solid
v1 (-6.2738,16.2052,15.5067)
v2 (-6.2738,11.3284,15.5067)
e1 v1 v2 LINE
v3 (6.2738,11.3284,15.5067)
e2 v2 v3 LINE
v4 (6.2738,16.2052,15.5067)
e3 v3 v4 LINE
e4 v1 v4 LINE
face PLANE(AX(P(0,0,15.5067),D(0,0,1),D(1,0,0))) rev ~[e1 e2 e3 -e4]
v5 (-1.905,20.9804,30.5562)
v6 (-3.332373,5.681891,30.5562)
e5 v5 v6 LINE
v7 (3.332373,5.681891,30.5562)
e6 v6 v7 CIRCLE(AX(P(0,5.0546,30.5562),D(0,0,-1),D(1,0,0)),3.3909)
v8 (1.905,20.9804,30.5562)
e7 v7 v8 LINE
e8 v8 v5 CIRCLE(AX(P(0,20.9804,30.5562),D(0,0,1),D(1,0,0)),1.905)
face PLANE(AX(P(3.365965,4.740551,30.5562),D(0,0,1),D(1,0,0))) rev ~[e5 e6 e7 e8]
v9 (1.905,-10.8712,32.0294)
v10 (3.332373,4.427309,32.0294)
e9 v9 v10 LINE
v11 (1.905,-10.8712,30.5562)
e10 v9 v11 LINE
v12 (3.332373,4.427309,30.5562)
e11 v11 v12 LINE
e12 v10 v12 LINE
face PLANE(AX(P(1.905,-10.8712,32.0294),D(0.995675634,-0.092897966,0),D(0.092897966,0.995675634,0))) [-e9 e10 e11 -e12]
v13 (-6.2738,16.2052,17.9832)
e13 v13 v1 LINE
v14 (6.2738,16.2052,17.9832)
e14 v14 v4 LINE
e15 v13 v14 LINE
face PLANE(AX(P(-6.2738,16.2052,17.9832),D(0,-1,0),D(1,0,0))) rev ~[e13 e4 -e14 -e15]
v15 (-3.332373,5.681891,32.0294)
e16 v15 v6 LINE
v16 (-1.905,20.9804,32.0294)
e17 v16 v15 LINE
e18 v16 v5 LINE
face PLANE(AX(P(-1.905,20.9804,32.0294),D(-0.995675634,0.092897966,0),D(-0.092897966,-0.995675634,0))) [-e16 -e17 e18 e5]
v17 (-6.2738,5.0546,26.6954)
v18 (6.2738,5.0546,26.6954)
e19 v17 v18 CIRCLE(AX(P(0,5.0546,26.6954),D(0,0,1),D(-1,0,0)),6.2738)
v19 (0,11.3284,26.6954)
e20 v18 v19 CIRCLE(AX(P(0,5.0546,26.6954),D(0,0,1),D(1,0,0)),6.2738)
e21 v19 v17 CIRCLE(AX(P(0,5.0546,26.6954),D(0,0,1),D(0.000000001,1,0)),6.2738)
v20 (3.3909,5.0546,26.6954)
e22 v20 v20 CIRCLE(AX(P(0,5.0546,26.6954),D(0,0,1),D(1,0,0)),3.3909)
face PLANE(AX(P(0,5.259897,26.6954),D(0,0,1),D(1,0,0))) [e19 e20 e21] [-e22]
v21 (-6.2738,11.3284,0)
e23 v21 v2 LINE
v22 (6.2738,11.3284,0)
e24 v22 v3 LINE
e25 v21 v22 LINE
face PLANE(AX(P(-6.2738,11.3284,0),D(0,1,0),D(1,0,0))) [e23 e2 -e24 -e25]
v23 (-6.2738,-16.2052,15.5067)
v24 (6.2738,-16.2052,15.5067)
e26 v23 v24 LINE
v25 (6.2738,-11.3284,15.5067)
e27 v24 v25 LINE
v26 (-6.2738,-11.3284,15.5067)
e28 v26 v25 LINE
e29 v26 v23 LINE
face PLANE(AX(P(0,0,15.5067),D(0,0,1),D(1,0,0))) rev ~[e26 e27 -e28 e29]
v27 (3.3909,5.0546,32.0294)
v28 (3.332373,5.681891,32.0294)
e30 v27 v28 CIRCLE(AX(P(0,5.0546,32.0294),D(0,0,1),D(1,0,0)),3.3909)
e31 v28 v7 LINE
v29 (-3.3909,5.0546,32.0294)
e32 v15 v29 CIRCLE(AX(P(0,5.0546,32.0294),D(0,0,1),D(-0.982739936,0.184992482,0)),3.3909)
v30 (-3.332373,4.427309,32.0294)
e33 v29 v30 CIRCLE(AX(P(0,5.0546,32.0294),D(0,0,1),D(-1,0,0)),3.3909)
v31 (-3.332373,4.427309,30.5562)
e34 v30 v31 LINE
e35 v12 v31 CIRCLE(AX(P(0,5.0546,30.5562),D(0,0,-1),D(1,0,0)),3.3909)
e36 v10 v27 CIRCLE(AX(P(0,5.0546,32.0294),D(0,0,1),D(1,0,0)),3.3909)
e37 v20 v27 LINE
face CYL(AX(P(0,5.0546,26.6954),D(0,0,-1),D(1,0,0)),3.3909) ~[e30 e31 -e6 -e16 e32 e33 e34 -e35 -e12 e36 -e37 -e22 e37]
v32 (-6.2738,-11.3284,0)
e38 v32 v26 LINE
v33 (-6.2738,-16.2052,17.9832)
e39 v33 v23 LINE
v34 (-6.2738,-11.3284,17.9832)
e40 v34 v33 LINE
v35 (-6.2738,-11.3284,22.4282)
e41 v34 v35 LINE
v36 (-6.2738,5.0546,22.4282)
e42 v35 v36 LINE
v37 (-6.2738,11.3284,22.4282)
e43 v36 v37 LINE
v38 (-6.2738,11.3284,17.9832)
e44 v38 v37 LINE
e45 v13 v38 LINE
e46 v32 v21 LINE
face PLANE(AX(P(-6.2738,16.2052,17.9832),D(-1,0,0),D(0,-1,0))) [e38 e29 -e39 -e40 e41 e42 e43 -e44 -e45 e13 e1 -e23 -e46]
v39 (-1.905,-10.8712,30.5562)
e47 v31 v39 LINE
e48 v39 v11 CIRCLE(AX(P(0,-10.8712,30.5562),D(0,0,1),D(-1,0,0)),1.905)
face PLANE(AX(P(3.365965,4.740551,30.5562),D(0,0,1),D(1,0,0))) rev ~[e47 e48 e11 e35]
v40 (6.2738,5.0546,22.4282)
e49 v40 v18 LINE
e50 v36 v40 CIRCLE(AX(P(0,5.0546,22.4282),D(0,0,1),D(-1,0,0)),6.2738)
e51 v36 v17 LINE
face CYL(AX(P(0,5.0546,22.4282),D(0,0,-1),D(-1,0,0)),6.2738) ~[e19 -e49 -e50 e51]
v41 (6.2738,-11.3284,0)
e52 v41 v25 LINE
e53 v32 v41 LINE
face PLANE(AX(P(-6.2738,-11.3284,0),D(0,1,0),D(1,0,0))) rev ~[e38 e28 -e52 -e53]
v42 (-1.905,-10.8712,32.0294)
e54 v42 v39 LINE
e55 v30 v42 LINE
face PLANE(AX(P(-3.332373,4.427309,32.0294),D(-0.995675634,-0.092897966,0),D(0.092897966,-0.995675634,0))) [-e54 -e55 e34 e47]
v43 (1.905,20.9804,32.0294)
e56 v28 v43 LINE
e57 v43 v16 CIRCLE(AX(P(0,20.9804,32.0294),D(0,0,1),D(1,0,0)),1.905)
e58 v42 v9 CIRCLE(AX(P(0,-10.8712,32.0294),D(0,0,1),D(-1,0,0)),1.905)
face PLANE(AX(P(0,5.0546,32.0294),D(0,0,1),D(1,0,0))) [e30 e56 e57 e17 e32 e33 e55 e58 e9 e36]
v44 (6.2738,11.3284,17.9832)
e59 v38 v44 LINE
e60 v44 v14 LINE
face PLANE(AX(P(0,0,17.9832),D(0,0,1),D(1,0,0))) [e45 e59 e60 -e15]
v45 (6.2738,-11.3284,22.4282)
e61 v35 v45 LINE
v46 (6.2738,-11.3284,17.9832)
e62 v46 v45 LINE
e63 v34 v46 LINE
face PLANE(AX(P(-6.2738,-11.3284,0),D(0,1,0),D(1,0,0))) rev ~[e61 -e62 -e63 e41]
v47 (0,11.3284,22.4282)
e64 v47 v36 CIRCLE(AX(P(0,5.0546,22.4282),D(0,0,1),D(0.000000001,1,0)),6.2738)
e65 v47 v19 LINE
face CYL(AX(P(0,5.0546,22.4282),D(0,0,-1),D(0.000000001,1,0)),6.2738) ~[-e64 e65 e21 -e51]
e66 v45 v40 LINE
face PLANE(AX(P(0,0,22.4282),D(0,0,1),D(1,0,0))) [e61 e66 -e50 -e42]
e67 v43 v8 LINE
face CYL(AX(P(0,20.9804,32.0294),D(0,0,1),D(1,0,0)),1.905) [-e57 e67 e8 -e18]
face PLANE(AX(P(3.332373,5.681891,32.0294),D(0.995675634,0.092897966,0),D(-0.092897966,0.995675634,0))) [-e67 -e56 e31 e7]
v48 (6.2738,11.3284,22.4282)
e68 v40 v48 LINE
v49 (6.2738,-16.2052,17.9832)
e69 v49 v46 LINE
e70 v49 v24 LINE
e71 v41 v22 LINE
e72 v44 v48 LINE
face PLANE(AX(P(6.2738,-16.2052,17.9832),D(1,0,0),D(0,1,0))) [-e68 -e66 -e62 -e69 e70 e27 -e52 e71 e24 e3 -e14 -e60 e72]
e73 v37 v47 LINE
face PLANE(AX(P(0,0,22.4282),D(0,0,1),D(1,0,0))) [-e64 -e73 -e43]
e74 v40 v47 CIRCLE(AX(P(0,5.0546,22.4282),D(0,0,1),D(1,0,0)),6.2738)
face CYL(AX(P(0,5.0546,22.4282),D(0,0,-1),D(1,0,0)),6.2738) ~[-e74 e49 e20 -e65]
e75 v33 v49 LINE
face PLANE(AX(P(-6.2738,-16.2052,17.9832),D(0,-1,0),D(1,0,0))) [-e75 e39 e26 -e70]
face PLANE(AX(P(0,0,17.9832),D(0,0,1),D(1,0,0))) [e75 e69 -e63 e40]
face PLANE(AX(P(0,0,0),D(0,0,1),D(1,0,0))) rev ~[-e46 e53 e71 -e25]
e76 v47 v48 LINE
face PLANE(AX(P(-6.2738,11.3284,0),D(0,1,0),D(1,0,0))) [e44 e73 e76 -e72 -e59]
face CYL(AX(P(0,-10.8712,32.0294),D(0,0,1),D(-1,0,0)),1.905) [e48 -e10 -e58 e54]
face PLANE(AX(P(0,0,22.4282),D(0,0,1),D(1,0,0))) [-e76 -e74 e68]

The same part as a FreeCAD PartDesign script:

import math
import FreeCAD as App
import Part
import Sketcher
from FreeCAD import Vector
Q = App.Units.Quantity

doc = App.newDocument("Part")
body = doc.addObject("PartDesign::Body", "Body")

# Sketch on XY plane
sketch1 = body.newObject("Sketcher::SketchObject", "Sketch")
sketch1.AttachmentSupport = (doc.getObject("XY_Plane"), [""])
sketch1.MapMode = "FlatFace"
sketch1.addGeometry(Part.LineSegment(Vector(-6, 11, 0), Vector(-6, -11, 0)), False)
sketch1.addGeometry(Part.LineSegment(Vector(-6, -11, 0), Vector(6, -11, 0)), False)
sketch1.addGeometry(Part.LineSegment(Vector(6, -11, 0), Vector(6, 11, 0)), False)
sketch1.addGeometry(Part.LineSegment(Vector(6, 11, 0), Vector(-6, 11, 0)), False)
sketch1.addConstraint(Sketcher.Constraint("Coincident", 0, 2, 1, 1))
sketch1.addConstraint(Sketcher.Constraint("Coincident", 1, 2, 2, 1))
sketch1.addConstraint(Sketcher.Constraint("Coincident", 2, 2, 3, 1))
sketch1.addConstraint(Sketcher.Constraint("Coincident", 3, 2, 0, 1))
sketch1.addConstraint(Sketcher.Constraint("Vertical", 0))
sketch1.addConstraint(Sketcher.Constraint("Horizontal", 1))
sketch1.addConstraint(Sketcher.Constraint("Vertical", 2))
sketch1.addConstraint(Sketcher.Constraint("Horizontal", 3))
sketch1.addConstraint(Sketcher.Constraint("Symmetric", 0, 2, 2, 2, -1, 1))
sketch1.addConstraint(Sketcher.Constraint("DistanceX", 1, 1, 1, 2, Q("0.494 in")))
sketch1.addConstraint(Sketcher.Constraint("DistanceY", 0, 2, 0, 1, Q("0.892 in")))
pad1 = body.newObject("PartDesign::Pad", "Pad")
pad1.Profile = sketch1
pad1.Length = Q("0.883 in")

# Sketch on XY plane
sketch2 = body.newObject("Sketcher::SketchObject", "Sketch001")
sketch2.AttachmentSupport = (doc.getObject("XY_Plane"), [""])
sketch2.MapMode = "FlatFace"
sketch2.AttachmentOffset = App.Placement(Vector(0, 0, 0.708 * 25.4), App.Rotation())
sketch2.addGeometry(Part.LineSegment(Vector(-6, -16, 0), Vector(6, -16, 0)), False)
sketch2.addGeometry(Part.LineSegment(Vector(6, -16, 0), Vector(6, 16, 0)), False)
sketch2.addGeometry(Part.LineSegment(Vector(6, 16, 0), Vector(-6, 16, 0)), False)
sketch2.addGeometry(Part.LineSegment(Vector(-6, 16, 0), Vector(-6, -16, 0)), False)
sketch2.addConstraint(Sketcher.Constraint("Coincident", 0, 2, 1, 1))
sketch2.addConstraint(Sketcher.Constraint("Coincident", 1, 2, 2, 1))
sketch2.addConstraint(Sketcher.Constraint("Coincident", 2, 2, 3, 1))
sketch2.addConstraint(Sketcher.Constraint("Coincident", 3, 2, 0, 1))
sketch2.addConstraint(Sketcher.Constraint("Horizontal", 0))
sketch2.addConstraint(Sketcher.Constraint("Vertical", 1))
sketch2.addConstraint(Sketcher.Constraint("Horizontal", 2))
sketch2.addConstraint(Sketcher.Constraint("Vertical", 3))
sketch2.addConstraint(Sketcher.Constraint("Symmetric", 0, 2, 2, 2, -1, 1))
sketch2.addConstraint(Sketcher.Constraint("DistanceX", 0, 1, 0, 2, Q("0.494 in")))
sketch2.addConstraint(Sketcher.Constraint("DistanceY", 1, 1, 1, 2, Q("1.276 in")))
pad2 = body.newObject("PartDesign::Pad", "Pad001")
pad2.Profile = sketch2
pad2.Length = Q("0.0975 in")
pad2.Reversed = True

# Sketch on XY plane
sketch3 = body.newObject("Sketcher::SketchObject", "Sketch002")
sketch3.AttachmentSupport = (doc.getObject("XY_Plane"), [""])
sketch3.MapMode = "FlatFace"
sketch3.AttachmentOffset = App.Placement(Vector(0, 0, 0.883 * 25.4), App.Rotation())
sketch3.addGeometry(Part.ArcOfCircle(Part.Circle(Vector(0, 5, 0), Vector(0, 0, 1), 6), math.radians(180), math.radians(360)), False)
sketch3.addGeometry(Part.ArcOfCircle(Part.Circle(Vector(0, 5, 0), Vector(0, 0, 1), 6), math.radians(0), math.radians(90)), False)
sketch3.addGeometry(Part.ArcOfCircle(Part.Circle(Vector(0, 5, 0), Vector(0, 0, 1), 6), math.radians(90), math.radians(180)), False)
sketch3.addConstraint(Sketcher.Constraint("Tangent", 0, 2, 1, 1))
sketch3.addConstraint(Sketcher.Constraint("Tangent", 1, 2, 2, 1))
sketch3.addConstraint(Sketcher.Constraint("Tangent", 2, 2, 0, 1))
sketch3.addConstraint(Sketcher.Constraint("Symmetric", 0, 2, 2, 2, -2))
sketch3.addConstraint(Sketcher.Constraint("PointOnObject", 1, 2, -2))
sketch3.addConstraint(Sketcher.Constraint("Horizontal", 2, 3, 0, 2))
sketch3.addConstraint(Sketcher.Constraint("Radius", 0, Q("0.247 in")))
sketch3.addConstraint(Sketcher.Constraint("DistanceY", -1, 1, 0, 3, Q("0.199 in")))
pad3 = body.newObject("PartDesign::Pad", "Pad002")
pad3.Profile = sketch3
pad3.Length = Q("0.168 in")

# Sketch on XY plane
sketch4 = body.newObject("Sketcher::SketchObject", "Sketch003")
sketch4.AttachmentSupport = (doc.getObject("XY_Plane"), [""])
sketch4.MapMode = "FlatFace"
sketch4.AttachmentOffset = App.Placement(Vector(0, 0, 1.051 * 25.4), App.Rotation())
sketch4.addGeometry(Part.Circle(Vector(0, 5.1, 0), Vector(0, 0, 1), 3.4), False)
sketch4.addConstraint(Sketcher.Constraint("PointOnObject", 0, 3, -2))
sketch4.addConstraint(Sketcher.Constraint("Diameter", 0, Q("0.267 in")))
sketch4.addConstraint(Sketcher.Constraint("DistanceY", -1, 1, 0, 3, Q("0.199 in")))
pad4 = body.newObject("PartDesign::Pad", "Pad003")
pad4.Profile = sketch4
pad4.Length = Q("0.21 in")

# Sketch on XY plane
sketch5 = body.newObject("Sketcher::SketchObject", "Sketch004")
sketch5.AttachmentSupport = (doc.getObject("XY_Plane"), [""])
sketch5.MapMode = "FlatFace"
sketch5.AttachmentOffset = App.Placement(Vector(0, 0, 1.261 * 25.4), App.Rotation())
sketch5.addGeometry(Part.ArcOfCircle(Part.Circle(Vector(0, 5.1, 0), Vector(0, 0, 1), 3.4), math.radians(-10.66), math.radians(0)), False)
sketch5.addGeometry(Part.ArcOfCircle(Part.Circle(Vector(0, 5.1, 0), Vector(0, 0, 1), 3.4), math.radians(0), math.radians(10.66)), False)
sketch5.addGeometry(Part.LineSegment(Vector(3.3, 5.7, 0), Vector(1.9, 21, 0)), False)
sketch5.addGeometry(Part.ArcOfCircle(Part.Circle(Vector(0, 21, 0), Vector(0, 0, 1), 1.9), math.radians(0), math.radians(180)), False)
sketch5.addGeometry(Part.LineSegment(Vector(-1.9, 21, 0), Vector(-3.3, 5.7, 0)), False)
sketch5.addGeometry(Part.ArcOfCircle(Part.Circle(Vector(0, 5.1, 0), Vector(0, 0, 1), 3.4), math.radians(169.34), math.radians(180)), False)
sketch5.addGeometry(Part.ArcOfCircle(Part.Circle(Vector(0, 5.1, 0), Vector(0, 0, 1), 3.4), math.radians(180), math.radians(190.66)), False)
sketch5.addGeometry(Part.LineSegment(Vector(-3.3, 4.4, 0), Vector(-1.9, -10.9, 0)), False)
sketch5.addGeometry(Part.ArcOfCircle(Part.Circle(Vector(0, -10.9, 0), Vector(0, 0, 1), 1.9), math.radians(180), math.radians(360)), False)
sketch5.addGeometry(Part.LineSegment(Vector(1.9, -10.9, 0), Vector(3.3, 4.4, 0)), False)
sketch5.addConstraint(Sketcher.Constraint("Tangent", 0, 2, 1, 1))
sketch5.addConstraint(Sketcher.Constraint("Coincident", 1, 2, 2, 1))
sketch5.addConstraint(Sketcher.Constraint("Coincident", 2, 2, 3, 1))
sketch5.addConstraint(Sketcher.Constraint("Coincident", 3, 2, 4, 1))
sketch5.addConstraint(Sketcher.Constraint("Coincident", 4, 2, 5, 1))
sketch5.addConstraint(Sketcher.Constraint("Tangent", 5, 2, 6, 1))
sketch5.addConstraint(Sketcher.Constraint("Coincident", 6, 2, 7, 1))
sketch5.addConstraint(Sketcher.Constraint("Coincident", 7, 2, 8, 1))
sketch5.addConstraint(Sketcher.Constraint("Coincident", 8, 2, 9, 1))
sketch5.addConstraint(Sketcher.Constraint("Coincident", 9, 2, 0, 1))
sketch5.addConstraint(Sketcher.Constraint("Coincident", 5, 3, 0, 3))
sketch5.addConstraint(Sketcher.Constraint("Equal", 0, 1))
sketch5.addConstraint(Sketcher.Constraint("Equal", 1, 5))
sketch5.addConstraint(Sketcher.Constraint("Equal", 5, 6))
sketch5.addConstraint(Sketcher.Constraint("Equal", 3, 8))
sketch5.addConstraint(Sketcher.Constraint("Symmetric", 2, 2, 3, 2, -2))
sketch5.addConstraint(Sketcher.Constraint("Symmetric", 1, 2, 4, 2, -2))
sketch5.addConstraint(Sketcher.Constraint("Symmetric", 7, 2, 8, 2, -2))
sketch5.addConstraint(Sketcher.Constraint("Parallel", 2, 7))
sketch5.addConstraint(Sketcher.Constraint("Parallel", 4, 9))
sketch5.addConstraint(Sketcher.Constraint("Horizontal", 6, 3, 0, 2))
sketch5.addConstraint(Sketcher.Constraint("Horizontal", 3, 3, 2, 2))
sketch5.addConstraint(Sketcher.Constraint("Horizontal", 0, 2, 5, 2))
sketch5.addConstraint(Sketcher.Constraint("Horizontal", 8, 3, 7, 2))
sketch5.addConstraint(Sketcher.Constraint("Vertical", 4, 2, 6, 2))
sketch5.addConstraint(Sketcher.Constraint("Radius", 3, Q("0.075 in")))
sketch5.addConstraint(Sketcher.Constraint("Radius", 0, Q("0.1335 in")))
sketch5.addConstraint(Sketcher.Constraint("DistanceY", -1, 1, 0, 3, Q("0.199 in")))
sketch5.addConstraint(Sketcher.Constraint("DistanceY", -1, 1, 3, 3, Q("0.826 in")))
sketch5.addConstraint(Sketcher.Constraint("DistanceY", -1, 1, 1, 2, Q("5.681891 mm")))
pad5 = body.newObject("PartDesign::Pad", "Pad004")
pad5.Profile = sketch5
pad5.Length = Q("0.058 in")
pad5.Reversed = True

doc.recompute()
